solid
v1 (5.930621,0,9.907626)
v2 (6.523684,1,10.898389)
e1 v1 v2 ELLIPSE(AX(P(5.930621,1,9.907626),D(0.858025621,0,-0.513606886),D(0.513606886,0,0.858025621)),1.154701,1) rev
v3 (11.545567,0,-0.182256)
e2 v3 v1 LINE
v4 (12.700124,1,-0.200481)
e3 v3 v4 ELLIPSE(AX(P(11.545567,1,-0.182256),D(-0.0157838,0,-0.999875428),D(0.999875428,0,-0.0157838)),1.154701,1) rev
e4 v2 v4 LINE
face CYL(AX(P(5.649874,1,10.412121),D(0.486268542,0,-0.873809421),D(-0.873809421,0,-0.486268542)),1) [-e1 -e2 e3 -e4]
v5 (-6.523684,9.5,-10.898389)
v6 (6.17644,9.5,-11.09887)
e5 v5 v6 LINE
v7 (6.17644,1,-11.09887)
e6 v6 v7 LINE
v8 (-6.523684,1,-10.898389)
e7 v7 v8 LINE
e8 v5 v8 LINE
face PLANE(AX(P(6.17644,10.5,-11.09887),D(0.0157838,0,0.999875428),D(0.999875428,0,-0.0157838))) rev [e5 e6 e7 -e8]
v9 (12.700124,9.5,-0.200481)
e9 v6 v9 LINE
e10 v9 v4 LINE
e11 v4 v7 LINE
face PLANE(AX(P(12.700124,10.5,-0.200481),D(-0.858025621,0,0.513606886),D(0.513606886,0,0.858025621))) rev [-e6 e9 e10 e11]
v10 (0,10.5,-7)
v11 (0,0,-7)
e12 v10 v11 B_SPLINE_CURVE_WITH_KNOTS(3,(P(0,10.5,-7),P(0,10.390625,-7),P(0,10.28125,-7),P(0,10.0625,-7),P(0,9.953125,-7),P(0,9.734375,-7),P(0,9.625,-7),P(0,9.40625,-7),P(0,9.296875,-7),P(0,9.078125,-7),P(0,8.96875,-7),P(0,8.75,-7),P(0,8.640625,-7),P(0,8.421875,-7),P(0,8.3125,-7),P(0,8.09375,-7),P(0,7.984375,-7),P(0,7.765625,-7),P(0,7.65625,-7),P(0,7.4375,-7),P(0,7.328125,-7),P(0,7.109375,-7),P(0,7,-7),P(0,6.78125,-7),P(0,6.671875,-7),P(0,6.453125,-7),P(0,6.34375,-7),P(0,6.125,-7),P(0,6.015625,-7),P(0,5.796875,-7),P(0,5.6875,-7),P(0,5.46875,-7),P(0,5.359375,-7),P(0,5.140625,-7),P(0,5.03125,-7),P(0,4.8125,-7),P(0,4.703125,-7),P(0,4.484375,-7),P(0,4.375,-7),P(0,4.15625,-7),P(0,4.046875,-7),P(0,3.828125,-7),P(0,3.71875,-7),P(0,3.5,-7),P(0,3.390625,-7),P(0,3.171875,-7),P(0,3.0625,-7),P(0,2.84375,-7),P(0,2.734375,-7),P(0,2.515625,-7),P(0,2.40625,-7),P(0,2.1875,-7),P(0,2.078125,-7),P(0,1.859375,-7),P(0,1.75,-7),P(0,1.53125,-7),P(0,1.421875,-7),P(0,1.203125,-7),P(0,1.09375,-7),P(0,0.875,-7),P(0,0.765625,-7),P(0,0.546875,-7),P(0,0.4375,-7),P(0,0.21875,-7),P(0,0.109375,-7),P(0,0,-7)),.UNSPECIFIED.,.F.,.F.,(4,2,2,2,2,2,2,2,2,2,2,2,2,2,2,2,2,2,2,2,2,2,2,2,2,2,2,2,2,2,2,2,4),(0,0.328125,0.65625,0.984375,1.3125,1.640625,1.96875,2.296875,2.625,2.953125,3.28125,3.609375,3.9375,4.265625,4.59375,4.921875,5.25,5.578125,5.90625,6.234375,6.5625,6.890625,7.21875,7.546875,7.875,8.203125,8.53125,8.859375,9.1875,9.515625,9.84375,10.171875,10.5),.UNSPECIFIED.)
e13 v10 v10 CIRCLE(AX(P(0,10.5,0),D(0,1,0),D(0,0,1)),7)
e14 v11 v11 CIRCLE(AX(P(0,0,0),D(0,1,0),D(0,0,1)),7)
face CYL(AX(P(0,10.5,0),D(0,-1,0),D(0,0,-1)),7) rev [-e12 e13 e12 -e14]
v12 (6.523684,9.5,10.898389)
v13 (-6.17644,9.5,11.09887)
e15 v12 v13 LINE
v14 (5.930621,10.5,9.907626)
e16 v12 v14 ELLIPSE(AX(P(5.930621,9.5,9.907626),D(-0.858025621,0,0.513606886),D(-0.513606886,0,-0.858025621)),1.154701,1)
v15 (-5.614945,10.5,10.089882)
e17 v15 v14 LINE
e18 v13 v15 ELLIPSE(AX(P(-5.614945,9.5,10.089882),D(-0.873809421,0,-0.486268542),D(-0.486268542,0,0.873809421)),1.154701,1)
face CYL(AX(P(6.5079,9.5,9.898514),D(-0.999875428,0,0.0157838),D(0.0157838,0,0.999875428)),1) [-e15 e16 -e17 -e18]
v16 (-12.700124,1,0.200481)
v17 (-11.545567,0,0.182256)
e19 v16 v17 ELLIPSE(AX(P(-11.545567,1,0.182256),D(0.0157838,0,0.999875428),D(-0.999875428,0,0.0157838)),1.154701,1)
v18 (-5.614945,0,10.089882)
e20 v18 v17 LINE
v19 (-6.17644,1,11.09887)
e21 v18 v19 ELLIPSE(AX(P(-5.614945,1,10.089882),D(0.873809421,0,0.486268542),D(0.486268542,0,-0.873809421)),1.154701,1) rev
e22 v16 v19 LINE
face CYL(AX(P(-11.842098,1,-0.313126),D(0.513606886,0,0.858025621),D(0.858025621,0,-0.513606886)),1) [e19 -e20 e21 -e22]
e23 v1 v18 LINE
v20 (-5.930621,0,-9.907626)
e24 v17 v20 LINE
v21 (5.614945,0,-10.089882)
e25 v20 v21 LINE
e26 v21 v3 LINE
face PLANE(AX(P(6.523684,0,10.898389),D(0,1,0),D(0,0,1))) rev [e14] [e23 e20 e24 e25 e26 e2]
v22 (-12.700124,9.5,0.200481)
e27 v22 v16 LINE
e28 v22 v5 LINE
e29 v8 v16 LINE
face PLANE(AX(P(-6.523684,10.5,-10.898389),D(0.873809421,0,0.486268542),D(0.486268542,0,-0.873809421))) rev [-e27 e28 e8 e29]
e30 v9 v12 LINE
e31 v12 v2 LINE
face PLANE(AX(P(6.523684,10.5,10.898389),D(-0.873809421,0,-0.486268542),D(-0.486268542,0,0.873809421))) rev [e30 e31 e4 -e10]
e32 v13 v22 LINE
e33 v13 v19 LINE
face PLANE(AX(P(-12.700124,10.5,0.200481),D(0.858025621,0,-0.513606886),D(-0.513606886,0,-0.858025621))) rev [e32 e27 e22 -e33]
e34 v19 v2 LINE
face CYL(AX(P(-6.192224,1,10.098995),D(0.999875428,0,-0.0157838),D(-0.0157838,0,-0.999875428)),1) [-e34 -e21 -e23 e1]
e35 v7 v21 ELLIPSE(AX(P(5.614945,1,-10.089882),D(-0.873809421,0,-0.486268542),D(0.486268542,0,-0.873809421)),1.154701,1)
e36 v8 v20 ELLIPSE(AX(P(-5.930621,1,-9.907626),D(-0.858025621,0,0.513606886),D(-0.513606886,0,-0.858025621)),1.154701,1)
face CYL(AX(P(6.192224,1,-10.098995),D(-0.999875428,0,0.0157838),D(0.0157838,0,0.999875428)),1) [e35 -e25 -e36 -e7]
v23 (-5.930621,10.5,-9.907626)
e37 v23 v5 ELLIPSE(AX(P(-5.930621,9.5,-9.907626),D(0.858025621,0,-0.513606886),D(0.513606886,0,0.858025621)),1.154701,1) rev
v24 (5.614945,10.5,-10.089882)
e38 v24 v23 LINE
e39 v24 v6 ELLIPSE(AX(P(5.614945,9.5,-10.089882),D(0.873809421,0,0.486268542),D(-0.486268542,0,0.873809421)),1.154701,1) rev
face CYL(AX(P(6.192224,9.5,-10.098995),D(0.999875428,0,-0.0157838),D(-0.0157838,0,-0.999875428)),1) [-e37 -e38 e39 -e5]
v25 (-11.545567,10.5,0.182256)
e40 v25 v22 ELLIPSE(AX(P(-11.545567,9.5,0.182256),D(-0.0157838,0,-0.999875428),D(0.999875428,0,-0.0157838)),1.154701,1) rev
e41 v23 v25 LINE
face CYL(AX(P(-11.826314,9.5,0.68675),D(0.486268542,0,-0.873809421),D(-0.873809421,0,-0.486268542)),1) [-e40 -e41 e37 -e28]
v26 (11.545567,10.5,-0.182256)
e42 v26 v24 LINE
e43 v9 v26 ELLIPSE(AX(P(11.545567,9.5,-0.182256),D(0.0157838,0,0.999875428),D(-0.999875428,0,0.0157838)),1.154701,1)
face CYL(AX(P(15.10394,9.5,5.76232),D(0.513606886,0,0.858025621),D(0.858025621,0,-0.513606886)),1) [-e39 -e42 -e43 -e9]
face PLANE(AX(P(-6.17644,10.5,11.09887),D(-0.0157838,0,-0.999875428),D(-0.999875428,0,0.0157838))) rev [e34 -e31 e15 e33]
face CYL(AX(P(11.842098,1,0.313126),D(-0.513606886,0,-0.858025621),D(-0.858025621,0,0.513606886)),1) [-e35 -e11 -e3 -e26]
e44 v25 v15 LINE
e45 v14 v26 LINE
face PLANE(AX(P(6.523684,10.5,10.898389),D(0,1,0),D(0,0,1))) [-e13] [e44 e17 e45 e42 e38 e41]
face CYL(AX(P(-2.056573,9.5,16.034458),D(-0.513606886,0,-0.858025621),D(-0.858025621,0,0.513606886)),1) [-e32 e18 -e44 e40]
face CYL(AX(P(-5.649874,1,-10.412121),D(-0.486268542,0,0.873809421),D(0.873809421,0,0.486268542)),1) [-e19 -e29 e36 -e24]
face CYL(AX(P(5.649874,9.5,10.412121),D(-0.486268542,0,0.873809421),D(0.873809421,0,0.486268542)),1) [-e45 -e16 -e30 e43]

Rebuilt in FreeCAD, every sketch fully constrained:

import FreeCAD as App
import Part
import Sketcher

V = App.Vector


def edges_at(feature, points):
    """Names of the edges that pass closest to the given points."""
    edges = feature.Shape.Edges
    near = lambda p: min(range(len(edges)), key=lambda i: edges[i].distToShape(Part.Vertex(*p))[0])
    return sorted({f"Edge{near(p) + 1}" for p in points})

doc = App.newDocument("Part")
body = doc.addObject("PartDesign::Body", "Body")

# Sketch on XZ plane
sketch1 = body.newObject("Sketcher::SketchObject", "Sketch")
sketch1.AttachmentSupport = (doc.getObject("XZ_Plane"), [""])
sketch1.MapMode = "FlatFace"
sketch1.addGeometry([
    Part.LineSegment(V(7, 11, 0), V(13, 0, 0)),  # 0
    Part.LineSegment(V(13, 0, 0), V(6, -11, 0)),  # 1
    Part.LineSegment(V(6, -11, 0), V(-7, -11, 0)),  # 2
    Part.LineSegment(V(-7, -11, 0), V(-13, 0, 0)),  # 3
    Part.LineSegment(V(-13, 0, 0), V(-6, 11, 0)),  # 4
    Part.LineSegment(V(-6, 11, 0), V(7, 11, 0)),  # 5
    Part.Circle(V(0, 0, 0), V(0, 0, 1), 7),  # 6
], False)
sketch1.addConstraint([
    Sketcher.Constraint("Coincident", 0, 2, 1, 1),
    Sketcher.Constraint("Coincident", 1, 2, 2, 1),
    Sketcher.Constraint("Coincident", 2, 2, 3, 1),
    Sketcher.Constraint("Coincident", 3, 2, 4, 1),
    Sketcher.Constraint("Coincident", 4, 2, 5, 1),
    Sketcher.Constraint("Coincident", 5, 2, 0, 1),
    Sketcher.Constraint("Coincident", 6, 3, -1, 1),
    Sketcher.Constraint("Symmetric", 0, 2, 3, 2, -1, 1),
    Sketcher.Constraint("Symmetric", 1, 2, 4, 2, -1, 1),
    Sketcher.Constraint("Symmetric", 2, 2, 5, 2, -1, 1),
    Sketcher.Constraint("Equal", 0, 1),
    Sketcher.Constraint("Equal", 1, 2),
    Sketcher.Constraint("Diameter", 6, 14.0),
    Sketcher.Constraint("DistanceY", 0, 2, -1, 1, 0.200481),
    Sketcher.Constraint("DistanceX", -1, 1, 1, 2, 6.17644),
    Sketcher.Constraint("DistanceY", 1, 2, -1, 1, 11.09887),
    Sketcher.Constraint("DistanceY", 2, 2, -1, 1, 10.898389),
])
pad1 = body.newObject("PartDesign::Pad", "Pad")
pad1.Profile = sketch1
pad1.Length = 10.5
pad1.Reversed = True
doc.recompute()

fillet = body.newObject("PartDesign::Fillet", "Fillet")
fillet.Base = (pad1, edges_at(pad1, [
    (9.438, 10.5, -5.65),
    (-0.174, 10.5, -10.999),
    (-9.612, 10.5, -5.349),
    (-9.438, 10.5, 5.65),
    (0.174, 10.5, 10.999),
    (-9.438, 0, 5.65),
    (-9.612, 0, -5.349),
    (-0.174, 0, -10.999),
    (9.612, 10.5, 5.349),
    (9.438, 0, -5.65),
    (9.612, 0, 5.349),
    (0.174, 0, 10.999),
]))
fillet.Radius = 1

doc.recompute()
